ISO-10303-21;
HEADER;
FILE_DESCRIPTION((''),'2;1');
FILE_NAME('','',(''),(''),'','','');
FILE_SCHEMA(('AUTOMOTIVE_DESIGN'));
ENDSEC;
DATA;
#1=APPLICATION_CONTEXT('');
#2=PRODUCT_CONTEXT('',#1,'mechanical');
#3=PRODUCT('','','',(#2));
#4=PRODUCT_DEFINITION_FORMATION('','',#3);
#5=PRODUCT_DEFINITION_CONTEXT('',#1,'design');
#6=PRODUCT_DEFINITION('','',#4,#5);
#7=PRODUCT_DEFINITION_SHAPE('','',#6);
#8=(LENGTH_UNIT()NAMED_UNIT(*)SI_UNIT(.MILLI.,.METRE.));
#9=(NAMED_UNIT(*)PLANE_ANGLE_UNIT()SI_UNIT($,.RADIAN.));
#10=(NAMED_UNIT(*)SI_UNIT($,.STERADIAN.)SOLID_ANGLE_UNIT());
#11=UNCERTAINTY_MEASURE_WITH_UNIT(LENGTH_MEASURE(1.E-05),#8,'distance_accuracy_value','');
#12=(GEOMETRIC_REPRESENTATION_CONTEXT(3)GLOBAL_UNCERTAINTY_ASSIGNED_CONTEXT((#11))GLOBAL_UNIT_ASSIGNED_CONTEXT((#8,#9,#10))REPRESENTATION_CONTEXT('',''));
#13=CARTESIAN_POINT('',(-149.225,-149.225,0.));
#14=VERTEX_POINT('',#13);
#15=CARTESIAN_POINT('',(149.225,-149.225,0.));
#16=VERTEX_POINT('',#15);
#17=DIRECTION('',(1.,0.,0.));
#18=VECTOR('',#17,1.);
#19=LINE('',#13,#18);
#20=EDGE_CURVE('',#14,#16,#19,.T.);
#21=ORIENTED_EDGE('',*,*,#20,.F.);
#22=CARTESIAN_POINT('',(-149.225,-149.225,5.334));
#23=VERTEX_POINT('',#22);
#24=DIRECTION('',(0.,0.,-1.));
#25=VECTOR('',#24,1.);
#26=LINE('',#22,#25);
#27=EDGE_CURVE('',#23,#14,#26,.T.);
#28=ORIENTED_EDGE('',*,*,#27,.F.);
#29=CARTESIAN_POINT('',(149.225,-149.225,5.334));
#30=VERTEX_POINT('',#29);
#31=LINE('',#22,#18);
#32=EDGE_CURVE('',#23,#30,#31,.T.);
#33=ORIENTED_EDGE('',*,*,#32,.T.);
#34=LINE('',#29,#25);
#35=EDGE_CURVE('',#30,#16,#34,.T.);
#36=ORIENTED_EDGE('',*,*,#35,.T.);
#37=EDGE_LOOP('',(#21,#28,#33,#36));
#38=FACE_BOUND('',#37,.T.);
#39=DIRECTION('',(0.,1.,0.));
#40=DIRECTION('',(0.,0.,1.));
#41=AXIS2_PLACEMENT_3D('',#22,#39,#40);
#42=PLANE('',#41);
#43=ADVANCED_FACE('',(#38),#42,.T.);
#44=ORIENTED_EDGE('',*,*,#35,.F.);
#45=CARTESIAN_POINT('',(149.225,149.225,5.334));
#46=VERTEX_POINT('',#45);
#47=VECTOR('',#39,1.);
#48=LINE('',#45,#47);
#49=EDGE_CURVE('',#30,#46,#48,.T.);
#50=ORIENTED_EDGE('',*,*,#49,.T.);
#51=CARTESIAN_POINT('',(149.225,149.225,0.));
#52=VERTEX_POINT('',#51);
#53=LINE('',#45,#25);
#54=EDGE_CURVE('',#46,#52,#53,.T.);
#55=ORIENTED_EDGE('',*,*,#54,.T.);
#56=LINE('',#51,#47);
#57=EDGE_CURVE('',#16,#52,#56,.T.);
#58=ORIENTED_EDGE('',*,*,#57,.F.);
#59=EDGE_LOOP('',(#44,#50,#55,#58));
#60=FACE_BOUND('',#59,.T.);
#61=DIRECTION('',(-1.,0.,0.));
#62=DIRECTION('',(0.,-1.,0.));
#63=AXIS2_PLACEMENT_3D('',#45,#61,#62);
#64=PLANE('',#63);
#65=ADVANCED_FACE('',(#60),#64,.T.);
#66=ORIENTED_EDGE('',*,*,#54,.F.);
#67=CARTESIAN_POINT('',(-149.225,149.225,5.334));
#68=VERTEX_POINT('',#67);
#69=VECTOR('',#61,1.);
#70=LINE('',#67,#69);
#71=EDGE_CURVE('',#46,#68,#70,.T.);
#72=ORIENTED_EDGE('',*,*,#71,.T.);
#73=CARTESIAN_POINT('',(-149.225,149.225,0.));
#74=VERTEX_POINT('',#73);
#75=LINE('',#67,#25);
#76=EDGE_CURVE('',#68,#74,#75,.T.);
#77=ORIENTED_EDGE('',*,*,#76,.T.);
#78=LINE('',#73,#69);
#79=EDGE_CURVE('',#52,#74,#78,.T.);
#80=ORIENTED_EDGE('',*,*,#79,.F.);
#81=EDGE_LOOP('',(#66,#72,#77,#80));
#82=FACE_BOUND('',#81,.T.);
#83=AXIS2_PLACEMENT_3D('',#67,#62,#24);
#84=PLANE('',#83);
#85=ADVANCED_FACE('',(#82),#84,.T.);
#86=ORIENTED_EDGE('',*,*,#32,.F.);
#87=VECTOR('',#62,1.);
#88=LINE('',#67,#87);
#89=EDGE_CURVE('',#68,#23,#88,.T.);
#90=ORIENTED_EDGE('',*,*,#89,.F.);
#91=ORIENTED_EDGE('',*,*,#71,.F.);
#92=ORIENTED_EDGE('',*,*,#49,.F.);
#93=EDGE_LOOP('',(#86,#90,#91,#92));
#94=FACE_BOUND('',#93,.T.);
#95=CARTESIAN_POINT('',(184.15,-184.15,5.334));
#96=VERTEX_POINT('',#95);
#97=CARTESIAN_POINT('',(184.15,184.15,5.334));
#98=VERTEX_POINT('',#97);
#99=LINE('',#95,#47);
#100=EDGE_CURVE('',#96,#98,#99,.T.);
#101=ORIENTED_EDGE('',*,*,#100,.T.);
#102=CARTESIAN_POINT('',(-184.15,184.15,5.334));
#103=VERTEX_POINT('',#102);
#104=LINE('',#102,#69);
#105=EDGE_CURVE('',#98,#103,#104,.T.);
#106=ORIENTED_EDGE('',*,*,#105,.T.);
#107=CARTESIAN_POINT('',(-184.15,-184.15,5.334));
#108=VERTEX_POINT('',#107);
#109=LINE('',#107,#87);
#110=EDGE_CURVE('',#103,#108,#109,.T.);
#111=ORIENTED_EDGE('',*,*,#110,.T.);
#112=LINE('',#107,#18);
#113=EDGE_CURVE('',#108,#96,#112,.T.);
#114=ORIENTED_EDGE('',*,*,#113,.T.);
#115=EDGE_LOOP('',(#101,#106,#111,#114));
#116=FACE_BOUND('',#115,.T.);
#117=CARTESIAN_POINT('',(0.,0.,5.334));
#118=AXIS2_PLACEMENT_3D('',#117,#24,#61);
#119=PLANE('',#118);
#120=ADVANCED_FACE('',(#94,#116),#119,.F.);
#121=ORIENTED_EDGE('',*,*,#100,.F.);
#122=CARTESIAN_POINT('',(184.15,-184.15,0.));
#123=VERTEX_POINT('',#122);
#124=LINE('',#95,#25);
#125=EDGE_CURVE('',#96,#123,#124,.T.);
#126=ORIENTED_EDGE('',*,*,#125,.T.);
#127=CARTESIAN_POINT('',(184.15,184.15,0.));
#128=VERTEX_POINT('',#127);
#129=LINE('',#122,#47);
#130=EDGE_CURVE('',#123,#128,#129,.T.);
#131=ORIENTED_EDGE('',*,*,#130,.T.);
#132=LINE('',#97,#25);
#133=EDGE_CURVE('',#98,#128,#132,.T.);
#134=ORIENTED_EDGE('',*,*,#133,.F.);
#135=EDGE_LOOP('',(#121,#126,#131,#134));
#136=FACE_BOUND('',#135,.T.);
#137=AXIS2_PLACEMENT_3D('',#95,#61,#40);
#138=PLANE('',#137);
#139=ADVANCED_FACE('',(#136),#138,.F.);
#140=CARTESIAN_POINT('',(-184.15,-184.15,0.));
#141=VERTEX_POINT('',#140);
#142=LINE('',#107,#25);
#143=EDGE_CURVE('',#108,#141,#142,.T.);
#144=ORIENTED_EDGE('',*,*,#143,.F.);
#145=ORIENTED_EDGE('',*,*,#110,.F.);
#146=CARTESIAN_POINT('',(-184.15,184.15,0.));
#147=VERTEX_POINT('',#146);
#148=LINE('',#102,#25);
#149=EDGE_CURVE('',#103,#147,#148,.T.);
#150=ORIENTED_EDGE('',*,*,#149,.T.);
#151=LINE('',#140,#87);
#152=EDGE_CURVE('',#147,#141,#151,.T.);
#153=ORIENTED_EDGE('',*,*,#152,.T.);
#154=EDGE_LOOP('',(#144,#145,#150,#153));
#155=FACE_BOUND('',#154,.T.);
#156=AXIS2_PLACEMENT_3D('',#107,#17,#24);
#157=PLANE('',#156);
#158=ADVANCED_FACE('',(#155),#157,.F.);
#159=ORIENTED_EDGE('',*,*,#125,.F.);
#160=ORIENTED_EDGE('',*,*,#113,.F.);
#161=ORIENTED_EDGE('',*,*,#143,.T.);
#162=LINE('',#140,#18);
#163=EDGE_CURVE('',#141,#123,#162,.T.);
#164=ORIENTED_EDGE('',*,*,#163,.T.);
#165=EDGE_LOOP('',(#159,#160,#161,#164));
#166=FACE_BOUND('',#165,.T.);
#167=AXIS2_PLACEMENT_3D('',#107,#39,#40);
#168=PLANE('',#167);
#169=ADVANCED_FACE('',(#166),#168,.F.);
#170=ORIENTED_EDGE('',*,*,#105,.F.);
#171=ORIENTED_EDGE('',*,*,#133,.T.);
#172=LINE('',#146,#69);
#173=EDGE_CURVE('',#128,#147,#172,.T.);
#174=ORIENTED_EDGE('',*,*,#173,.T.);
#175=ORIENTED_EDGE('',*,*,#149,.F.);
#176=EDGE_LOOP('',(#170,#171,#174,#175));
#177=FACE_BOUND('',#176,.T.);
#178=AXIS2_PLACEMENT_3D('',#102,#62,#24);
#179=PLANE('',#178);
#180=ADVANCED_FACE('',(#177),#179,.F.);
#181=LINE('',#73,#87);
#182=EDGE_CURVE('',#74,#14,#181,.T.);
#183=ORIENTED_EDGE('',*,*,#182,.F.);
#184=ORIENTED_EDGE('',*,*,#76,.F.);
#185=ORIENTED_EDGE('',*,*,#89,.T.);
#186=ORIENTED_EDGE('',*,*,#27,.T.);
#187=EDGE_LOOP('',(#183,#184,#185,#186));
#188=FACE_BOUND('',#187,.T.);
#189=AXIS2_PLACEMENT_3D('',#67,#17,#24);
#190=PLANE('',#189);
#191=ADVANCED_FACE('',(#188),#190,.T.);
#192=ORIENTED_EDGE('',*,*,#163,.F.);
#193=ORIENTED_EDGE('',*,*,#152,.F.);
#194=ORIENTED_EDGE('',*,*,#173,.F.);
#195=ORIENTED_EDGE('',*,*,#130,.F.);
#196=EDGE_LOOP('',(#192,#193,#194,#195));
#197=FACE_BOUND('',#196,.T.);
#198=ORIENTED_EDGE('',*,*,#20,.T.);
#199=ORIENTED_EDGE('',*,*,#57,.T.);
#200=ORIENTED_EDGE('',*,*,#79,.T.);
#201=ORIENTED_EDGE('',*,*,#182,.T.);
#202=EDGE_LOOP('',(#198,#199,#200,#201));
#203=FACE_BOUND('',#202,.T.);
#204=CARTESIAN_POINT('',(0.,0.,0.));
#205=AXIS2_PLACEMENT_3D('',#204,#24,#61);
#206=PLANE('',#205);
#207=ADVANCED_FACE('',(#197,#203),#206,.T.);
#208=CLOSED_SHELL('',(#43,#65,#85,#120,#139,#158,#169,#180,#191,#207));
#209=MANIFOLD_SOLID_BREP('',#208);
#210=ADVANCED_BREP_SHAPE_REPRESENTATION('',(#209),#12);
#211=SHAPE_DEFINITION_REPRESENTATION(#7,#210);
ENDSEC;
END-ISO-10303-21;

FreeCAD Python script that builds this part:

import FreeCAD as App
import Part
import Sketcher
from FreeCAD import Vector
Q = App.Units.Quantity


def add_polygon(sketch, points):
    """Adds a closed chain of lines whose ends are joined by coincident constraints."""
    first, n = sketch.GeometryCount, len(points)
    for a, b in zip(points, points[1:] + points[:1]):
        sketch.addGeometry(Part.LineSegment(App.Vector(*a, 0), App.Vector(*b, 0)), False)
    for i in range(n):
        sketch.addConstraint(Sketcher.Constraint("Coincident", first + i, 2, first + (i + 1) % n, 1))

doc = App.newDocument("Part")
body = doc.addObject("PartDesign::Body", "Body")

# Sketch on XY plane
sketch1 = doc.addObject("Sketcher::SketchObject", "Sketch")
body.addObject(sketch1)
sketch1.AttachmentSupport = (doc.XY_Plane, [""])
sketch1.MapMode = "FlatFace"
add_polygon(sketch1, [(-184.15, 184.15), (-184.15, -184.15), (184.15, -184.15), (184.15, 184.15)])  # lines 0-3
add_polygon(sketch1, [(149.225, -149.225), (-149.225, -149.225), (-149.225, 149.225), (149.225, 149.225)])  # lines 4-7
sketch1.addConstraint([
    Sketcher.Constraint("Vertical", 0),
    Sketcher.Constraint("Horizontal", 1),
    Sketcher.Constraint("Vertical", 2),
    Sketcher.Constraint("Horizontal", 3),
    Sketcher.Constraint("Horizontal", 4),
    Sketcher.Constraint("Vertical", 5),
    Sketcher.Constraint("Horizontal", 6),
    Sketcher.Constraint("Vertical", 7),
    Sketcher.Constraint("Symmetric", 0, 2, 2, 2, -1, 1),
    Sketcher.Constraint("Symmetric", 4, 2, 6, 2, -1, 1),
    Sketcher.Constraint("Equal", 3, 0),
    Sketcher.Constraint("Equal", 6, 5),
    Sketcher.Constraint("DistanceX", 1, 1, 1, 2, Q("14.5 in")),
    Sketcher.Constraint("DistanceX", 4, 2, 4, 1, Q("11.75 in")),
])
pad1 = doc.addObject("PartDesign::Pad", "Pad")
body.addObject(pad1)
pad1.Profile = sketch1
pad1.Length = Q("0.21 in")

doc.recompute()
